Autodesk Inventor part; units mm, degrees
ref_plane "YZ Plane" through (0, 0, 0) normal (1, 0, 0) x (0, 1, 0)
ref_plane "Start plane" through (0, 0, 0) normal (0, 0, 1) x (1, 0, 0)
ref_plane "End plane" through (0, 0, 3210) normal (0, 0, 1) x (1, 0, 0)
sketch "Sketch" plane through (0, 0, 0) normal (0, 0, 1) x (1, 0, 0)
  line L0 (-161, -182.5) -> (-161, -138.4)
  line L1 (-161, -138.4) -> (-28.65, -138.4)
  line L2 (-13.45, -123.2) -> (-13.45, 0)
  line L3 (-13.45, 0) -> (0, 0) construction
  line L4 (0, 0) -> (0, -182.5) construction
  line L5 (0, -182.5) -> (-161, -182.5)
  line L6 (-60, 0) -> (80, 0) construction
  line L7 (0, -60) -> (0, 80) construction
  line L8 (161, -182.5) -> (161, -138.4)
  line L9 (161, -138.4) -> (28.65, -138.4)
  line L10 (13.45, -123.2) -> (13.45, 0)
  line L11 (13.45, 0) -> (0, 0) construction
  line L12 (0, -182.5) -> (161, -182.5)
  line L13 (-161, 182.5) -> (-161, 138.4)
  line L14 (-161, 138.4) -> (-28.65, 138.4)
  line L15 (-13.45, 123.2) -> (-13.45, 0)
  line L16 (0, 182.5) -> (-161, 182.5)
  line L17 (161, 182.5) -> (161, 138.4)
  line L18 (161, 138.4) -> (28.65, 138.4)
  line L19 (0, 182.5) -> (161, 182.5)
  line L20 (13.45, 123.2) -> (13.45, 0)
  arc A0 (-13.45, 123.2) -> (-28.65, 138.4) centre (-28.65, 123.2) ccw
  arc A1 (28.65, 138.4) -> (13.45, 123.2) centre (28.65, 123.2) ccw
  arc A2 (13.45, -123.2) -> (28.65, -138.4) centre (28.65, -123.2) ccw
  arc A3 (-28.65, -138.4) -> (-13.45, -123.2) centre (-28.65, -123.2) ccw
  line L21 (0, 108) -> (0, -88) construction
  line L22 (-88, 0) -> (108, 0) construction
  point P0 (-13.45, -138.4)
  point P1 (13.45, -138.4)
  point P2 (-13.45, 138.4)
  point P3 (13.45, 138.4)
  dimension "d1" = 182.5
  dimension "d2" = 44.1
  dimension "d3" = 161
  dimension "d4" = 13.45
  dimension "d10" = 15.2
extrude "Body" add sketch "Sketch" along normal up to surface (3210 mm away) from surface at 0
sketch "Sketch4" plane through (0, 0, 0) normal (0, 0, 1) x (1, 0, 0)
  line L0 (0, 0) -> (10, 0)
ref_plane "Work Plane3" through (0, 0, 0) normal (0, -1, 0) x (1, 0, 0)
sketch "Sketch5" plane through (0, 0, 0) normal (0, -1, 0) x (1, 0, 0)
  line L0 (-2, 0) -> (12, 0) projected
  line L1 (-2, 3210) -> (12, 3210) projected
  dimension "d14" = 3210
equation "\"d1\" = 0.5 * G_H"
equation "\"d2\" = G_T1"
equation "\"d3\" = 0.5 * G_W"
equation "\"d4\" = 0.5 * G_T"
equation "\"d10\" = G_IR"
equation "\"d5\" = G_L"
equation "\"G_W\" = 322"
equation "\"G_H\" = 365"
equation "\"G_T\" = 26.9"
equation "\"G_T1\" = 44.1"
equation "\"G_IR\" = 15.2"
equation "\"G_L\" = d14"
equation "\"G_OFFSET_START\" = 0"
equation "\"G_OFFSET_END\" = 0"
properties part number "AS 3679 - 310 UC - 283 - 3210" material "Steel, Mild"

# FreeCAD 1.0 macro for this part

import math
import FreeCAD as App
import Part
import Sketcher
from FreeCAD import Vector
Q = App.Units.Quantity

doc = App.newDocument("Part")
body = doc.addObject("PartDesign::Body", "Body")

sketch1 = body.newObject("Sketcher::SketchObject", "Sketch")
sketch1.AttachmentSupport = (doc.getObject("XY_Plane"), [""])
sketch1.MapMode = "FlatFace"
sketch1.addGeometry([
    Part.LineSegment(Vector(-161, -138.4, 0), Vector(-161, -182.5, 0)),
    Part.LineSegment(Vector(-161, -182.5, 0), Vector(161, -182.5, 0)),
    Part.LineSegment(Vector(161, -182.5, 0), Vector(161, -138.4, 0)),
    Part.LineSegment(Vector(161, -138.4, 0), Vector(28.65, -138.4, 0)),
    Part.ArcOfCircle(Part.Circle(Vector(28.65, -123.2, 0), Vector(0, 0, 1), 15.2), math.radians(180), math.radians(270)),
    Part.LineSegment(Vector(13.45, -123.2, 0), Vector(13.45, 123.2, 0)),
    Part.ArcOfCircle(Part.Circle(Vector(28.65, 123.2, 0), Vector(0, 0, 1), 15.2), math.radians(90), math.radians(180)),
    Part.LineSegment(Vector(28.65, 138.4, 0), Vector(161, 138.4, 0)),
    Part.LineSegment(Vector(161, 138.4, 0), Vector(161, 182.5, 0)),
    Part.LineSegment(Vector(161, 182.5, 0), Vector(-161, 182.5, 0)),
    Part.LineSegment(Vector(-161, 182.5, 0), Vector(-161, 138.4, 0)),
    Part.LineSegment(Vector(-161, 138.4, 0), Vector(-28.65, 138.4, 0)),
    Part.ArcOfCircle(Part.Circle(Vector(-28.65, 123.2, 0), Vector(0, 0, 1), 15.2), math.radians(0), math.radians(90)),
    Part.LineSegment(Vector(-13.45, 123.2, 0), Vector(-13.45, -123.2, 0)),
    Part.ArcOfCircle(Part.Circle(Vector(-28.65, -123.2, 0), Vector(0, 0, 1), 15.2), math.radians(-90), math.radians(0)),
    Part.LineSegment(Vector(-28.65, -138.4, 0), Vector(-161, -138.4, 0)),
], False)
sketch1.addConstraint([
    Sketcher.Constraint("Coincident", 0, 2, 1, 1),
    Sketcher.Constraint("Coincident", 1, 2, 2, 1),
    Sketcher.Constraint("Coincident", 2, 2, 3, 1),
    Sketcher.Constraint("Tangent", 3, 2, 4, 2),
    Sketcher.Constraint("Tangent", 4, 1, 5, 1),
    Sketcher.Constraint("Tangent", 5, 2, 6, 2),
    Sketcher.Constraint("Tangent", 6, 1, 7, 1),
    Sketcher.Constraint("Coincident", 7, 2, 8, 1),
    Sketcher.Constraint("Coincident", 8, 2, 9, 1),
    Sketcher.Constraint("Coincident", 9, 2, 10, 1),
    Sketcher.Constraint("Coincident", 10, 2, 11, 1),
    Sketcher.Constraint("Tangent", 11, 2, 12, 2),
    Sketcher.Constraint("Tangent", 12, 1, 13, 1),
    Sketcher.Constraint("Tangent", 13, 2, 14, 2),
    Sketcher.Constraint("Tangent", 14, 1, 15, 1),
    Sketcher.Constraint("Coincident", 15, 2, 0, 1),
    Sketcher.Constraint("Vertical", 0),
    Sketcher.Constraint("Horizontal", 1),
    Sketcher.Constraint("Vertical", 2),
    Sketcher.Constraint("Horizontal", 3),
    Sketcher.Constraint("Vertical", 5),
    Sketcher.Constraint("Horizontal", 7),
    Sketcher.Constraint("Vertical", 8),
    Sketcher.Constraint("Horizontal", 9),
    Sketcher.Constraint("Vertical", 10),
    Sketcher.Constraint("Horizontal", 11),
    Sketcher.Constraint("Vertical", 13),
    Sketcher.Constraint("Horizontal", 15),
    Sketcher.Constraint("Equal", 4, 6),
    Sketcher.Constraint("Equal", 6, 12),
    Sketcher.Constraint("Equal", 12, 14),
    Sketcher.Constraint("Symmetric", 4, 3, 12, 3, -1, 1),
    Sketcher.Constraint("Symmetric", 0, 2, 8, 2, -1, 1),
    Sketcher.Constraint("Symmetric", 7, 2, 10, 2, -2),
    Sketcher.Constraint("Symmetric", 2, 2, 15, 2, -2),
    Sketcher.Constraint("Radius", 4, Q("15.2 mm")),
    Sketcher.Constraint("DistanceY", 0, 2, 0, 1, Q("44.1 mm")),
    Sketcher.Constraint("DistanceX", 0, 2, -1, 1, Q("161 mm")),
    Sketcher.Constraint("DistanceY", 0, 2, -1, 1, Q("182.5 mm")),
    Sketcher.Constraint("DistanceX", -1, 1, 4, 1, Q("13.45 mm")),
])
pad1 = body.newObject("PartDesign::Pad", "Pad")
pad1.Profile = sketch1
pad1.Length = 3210

doc.recompute()
